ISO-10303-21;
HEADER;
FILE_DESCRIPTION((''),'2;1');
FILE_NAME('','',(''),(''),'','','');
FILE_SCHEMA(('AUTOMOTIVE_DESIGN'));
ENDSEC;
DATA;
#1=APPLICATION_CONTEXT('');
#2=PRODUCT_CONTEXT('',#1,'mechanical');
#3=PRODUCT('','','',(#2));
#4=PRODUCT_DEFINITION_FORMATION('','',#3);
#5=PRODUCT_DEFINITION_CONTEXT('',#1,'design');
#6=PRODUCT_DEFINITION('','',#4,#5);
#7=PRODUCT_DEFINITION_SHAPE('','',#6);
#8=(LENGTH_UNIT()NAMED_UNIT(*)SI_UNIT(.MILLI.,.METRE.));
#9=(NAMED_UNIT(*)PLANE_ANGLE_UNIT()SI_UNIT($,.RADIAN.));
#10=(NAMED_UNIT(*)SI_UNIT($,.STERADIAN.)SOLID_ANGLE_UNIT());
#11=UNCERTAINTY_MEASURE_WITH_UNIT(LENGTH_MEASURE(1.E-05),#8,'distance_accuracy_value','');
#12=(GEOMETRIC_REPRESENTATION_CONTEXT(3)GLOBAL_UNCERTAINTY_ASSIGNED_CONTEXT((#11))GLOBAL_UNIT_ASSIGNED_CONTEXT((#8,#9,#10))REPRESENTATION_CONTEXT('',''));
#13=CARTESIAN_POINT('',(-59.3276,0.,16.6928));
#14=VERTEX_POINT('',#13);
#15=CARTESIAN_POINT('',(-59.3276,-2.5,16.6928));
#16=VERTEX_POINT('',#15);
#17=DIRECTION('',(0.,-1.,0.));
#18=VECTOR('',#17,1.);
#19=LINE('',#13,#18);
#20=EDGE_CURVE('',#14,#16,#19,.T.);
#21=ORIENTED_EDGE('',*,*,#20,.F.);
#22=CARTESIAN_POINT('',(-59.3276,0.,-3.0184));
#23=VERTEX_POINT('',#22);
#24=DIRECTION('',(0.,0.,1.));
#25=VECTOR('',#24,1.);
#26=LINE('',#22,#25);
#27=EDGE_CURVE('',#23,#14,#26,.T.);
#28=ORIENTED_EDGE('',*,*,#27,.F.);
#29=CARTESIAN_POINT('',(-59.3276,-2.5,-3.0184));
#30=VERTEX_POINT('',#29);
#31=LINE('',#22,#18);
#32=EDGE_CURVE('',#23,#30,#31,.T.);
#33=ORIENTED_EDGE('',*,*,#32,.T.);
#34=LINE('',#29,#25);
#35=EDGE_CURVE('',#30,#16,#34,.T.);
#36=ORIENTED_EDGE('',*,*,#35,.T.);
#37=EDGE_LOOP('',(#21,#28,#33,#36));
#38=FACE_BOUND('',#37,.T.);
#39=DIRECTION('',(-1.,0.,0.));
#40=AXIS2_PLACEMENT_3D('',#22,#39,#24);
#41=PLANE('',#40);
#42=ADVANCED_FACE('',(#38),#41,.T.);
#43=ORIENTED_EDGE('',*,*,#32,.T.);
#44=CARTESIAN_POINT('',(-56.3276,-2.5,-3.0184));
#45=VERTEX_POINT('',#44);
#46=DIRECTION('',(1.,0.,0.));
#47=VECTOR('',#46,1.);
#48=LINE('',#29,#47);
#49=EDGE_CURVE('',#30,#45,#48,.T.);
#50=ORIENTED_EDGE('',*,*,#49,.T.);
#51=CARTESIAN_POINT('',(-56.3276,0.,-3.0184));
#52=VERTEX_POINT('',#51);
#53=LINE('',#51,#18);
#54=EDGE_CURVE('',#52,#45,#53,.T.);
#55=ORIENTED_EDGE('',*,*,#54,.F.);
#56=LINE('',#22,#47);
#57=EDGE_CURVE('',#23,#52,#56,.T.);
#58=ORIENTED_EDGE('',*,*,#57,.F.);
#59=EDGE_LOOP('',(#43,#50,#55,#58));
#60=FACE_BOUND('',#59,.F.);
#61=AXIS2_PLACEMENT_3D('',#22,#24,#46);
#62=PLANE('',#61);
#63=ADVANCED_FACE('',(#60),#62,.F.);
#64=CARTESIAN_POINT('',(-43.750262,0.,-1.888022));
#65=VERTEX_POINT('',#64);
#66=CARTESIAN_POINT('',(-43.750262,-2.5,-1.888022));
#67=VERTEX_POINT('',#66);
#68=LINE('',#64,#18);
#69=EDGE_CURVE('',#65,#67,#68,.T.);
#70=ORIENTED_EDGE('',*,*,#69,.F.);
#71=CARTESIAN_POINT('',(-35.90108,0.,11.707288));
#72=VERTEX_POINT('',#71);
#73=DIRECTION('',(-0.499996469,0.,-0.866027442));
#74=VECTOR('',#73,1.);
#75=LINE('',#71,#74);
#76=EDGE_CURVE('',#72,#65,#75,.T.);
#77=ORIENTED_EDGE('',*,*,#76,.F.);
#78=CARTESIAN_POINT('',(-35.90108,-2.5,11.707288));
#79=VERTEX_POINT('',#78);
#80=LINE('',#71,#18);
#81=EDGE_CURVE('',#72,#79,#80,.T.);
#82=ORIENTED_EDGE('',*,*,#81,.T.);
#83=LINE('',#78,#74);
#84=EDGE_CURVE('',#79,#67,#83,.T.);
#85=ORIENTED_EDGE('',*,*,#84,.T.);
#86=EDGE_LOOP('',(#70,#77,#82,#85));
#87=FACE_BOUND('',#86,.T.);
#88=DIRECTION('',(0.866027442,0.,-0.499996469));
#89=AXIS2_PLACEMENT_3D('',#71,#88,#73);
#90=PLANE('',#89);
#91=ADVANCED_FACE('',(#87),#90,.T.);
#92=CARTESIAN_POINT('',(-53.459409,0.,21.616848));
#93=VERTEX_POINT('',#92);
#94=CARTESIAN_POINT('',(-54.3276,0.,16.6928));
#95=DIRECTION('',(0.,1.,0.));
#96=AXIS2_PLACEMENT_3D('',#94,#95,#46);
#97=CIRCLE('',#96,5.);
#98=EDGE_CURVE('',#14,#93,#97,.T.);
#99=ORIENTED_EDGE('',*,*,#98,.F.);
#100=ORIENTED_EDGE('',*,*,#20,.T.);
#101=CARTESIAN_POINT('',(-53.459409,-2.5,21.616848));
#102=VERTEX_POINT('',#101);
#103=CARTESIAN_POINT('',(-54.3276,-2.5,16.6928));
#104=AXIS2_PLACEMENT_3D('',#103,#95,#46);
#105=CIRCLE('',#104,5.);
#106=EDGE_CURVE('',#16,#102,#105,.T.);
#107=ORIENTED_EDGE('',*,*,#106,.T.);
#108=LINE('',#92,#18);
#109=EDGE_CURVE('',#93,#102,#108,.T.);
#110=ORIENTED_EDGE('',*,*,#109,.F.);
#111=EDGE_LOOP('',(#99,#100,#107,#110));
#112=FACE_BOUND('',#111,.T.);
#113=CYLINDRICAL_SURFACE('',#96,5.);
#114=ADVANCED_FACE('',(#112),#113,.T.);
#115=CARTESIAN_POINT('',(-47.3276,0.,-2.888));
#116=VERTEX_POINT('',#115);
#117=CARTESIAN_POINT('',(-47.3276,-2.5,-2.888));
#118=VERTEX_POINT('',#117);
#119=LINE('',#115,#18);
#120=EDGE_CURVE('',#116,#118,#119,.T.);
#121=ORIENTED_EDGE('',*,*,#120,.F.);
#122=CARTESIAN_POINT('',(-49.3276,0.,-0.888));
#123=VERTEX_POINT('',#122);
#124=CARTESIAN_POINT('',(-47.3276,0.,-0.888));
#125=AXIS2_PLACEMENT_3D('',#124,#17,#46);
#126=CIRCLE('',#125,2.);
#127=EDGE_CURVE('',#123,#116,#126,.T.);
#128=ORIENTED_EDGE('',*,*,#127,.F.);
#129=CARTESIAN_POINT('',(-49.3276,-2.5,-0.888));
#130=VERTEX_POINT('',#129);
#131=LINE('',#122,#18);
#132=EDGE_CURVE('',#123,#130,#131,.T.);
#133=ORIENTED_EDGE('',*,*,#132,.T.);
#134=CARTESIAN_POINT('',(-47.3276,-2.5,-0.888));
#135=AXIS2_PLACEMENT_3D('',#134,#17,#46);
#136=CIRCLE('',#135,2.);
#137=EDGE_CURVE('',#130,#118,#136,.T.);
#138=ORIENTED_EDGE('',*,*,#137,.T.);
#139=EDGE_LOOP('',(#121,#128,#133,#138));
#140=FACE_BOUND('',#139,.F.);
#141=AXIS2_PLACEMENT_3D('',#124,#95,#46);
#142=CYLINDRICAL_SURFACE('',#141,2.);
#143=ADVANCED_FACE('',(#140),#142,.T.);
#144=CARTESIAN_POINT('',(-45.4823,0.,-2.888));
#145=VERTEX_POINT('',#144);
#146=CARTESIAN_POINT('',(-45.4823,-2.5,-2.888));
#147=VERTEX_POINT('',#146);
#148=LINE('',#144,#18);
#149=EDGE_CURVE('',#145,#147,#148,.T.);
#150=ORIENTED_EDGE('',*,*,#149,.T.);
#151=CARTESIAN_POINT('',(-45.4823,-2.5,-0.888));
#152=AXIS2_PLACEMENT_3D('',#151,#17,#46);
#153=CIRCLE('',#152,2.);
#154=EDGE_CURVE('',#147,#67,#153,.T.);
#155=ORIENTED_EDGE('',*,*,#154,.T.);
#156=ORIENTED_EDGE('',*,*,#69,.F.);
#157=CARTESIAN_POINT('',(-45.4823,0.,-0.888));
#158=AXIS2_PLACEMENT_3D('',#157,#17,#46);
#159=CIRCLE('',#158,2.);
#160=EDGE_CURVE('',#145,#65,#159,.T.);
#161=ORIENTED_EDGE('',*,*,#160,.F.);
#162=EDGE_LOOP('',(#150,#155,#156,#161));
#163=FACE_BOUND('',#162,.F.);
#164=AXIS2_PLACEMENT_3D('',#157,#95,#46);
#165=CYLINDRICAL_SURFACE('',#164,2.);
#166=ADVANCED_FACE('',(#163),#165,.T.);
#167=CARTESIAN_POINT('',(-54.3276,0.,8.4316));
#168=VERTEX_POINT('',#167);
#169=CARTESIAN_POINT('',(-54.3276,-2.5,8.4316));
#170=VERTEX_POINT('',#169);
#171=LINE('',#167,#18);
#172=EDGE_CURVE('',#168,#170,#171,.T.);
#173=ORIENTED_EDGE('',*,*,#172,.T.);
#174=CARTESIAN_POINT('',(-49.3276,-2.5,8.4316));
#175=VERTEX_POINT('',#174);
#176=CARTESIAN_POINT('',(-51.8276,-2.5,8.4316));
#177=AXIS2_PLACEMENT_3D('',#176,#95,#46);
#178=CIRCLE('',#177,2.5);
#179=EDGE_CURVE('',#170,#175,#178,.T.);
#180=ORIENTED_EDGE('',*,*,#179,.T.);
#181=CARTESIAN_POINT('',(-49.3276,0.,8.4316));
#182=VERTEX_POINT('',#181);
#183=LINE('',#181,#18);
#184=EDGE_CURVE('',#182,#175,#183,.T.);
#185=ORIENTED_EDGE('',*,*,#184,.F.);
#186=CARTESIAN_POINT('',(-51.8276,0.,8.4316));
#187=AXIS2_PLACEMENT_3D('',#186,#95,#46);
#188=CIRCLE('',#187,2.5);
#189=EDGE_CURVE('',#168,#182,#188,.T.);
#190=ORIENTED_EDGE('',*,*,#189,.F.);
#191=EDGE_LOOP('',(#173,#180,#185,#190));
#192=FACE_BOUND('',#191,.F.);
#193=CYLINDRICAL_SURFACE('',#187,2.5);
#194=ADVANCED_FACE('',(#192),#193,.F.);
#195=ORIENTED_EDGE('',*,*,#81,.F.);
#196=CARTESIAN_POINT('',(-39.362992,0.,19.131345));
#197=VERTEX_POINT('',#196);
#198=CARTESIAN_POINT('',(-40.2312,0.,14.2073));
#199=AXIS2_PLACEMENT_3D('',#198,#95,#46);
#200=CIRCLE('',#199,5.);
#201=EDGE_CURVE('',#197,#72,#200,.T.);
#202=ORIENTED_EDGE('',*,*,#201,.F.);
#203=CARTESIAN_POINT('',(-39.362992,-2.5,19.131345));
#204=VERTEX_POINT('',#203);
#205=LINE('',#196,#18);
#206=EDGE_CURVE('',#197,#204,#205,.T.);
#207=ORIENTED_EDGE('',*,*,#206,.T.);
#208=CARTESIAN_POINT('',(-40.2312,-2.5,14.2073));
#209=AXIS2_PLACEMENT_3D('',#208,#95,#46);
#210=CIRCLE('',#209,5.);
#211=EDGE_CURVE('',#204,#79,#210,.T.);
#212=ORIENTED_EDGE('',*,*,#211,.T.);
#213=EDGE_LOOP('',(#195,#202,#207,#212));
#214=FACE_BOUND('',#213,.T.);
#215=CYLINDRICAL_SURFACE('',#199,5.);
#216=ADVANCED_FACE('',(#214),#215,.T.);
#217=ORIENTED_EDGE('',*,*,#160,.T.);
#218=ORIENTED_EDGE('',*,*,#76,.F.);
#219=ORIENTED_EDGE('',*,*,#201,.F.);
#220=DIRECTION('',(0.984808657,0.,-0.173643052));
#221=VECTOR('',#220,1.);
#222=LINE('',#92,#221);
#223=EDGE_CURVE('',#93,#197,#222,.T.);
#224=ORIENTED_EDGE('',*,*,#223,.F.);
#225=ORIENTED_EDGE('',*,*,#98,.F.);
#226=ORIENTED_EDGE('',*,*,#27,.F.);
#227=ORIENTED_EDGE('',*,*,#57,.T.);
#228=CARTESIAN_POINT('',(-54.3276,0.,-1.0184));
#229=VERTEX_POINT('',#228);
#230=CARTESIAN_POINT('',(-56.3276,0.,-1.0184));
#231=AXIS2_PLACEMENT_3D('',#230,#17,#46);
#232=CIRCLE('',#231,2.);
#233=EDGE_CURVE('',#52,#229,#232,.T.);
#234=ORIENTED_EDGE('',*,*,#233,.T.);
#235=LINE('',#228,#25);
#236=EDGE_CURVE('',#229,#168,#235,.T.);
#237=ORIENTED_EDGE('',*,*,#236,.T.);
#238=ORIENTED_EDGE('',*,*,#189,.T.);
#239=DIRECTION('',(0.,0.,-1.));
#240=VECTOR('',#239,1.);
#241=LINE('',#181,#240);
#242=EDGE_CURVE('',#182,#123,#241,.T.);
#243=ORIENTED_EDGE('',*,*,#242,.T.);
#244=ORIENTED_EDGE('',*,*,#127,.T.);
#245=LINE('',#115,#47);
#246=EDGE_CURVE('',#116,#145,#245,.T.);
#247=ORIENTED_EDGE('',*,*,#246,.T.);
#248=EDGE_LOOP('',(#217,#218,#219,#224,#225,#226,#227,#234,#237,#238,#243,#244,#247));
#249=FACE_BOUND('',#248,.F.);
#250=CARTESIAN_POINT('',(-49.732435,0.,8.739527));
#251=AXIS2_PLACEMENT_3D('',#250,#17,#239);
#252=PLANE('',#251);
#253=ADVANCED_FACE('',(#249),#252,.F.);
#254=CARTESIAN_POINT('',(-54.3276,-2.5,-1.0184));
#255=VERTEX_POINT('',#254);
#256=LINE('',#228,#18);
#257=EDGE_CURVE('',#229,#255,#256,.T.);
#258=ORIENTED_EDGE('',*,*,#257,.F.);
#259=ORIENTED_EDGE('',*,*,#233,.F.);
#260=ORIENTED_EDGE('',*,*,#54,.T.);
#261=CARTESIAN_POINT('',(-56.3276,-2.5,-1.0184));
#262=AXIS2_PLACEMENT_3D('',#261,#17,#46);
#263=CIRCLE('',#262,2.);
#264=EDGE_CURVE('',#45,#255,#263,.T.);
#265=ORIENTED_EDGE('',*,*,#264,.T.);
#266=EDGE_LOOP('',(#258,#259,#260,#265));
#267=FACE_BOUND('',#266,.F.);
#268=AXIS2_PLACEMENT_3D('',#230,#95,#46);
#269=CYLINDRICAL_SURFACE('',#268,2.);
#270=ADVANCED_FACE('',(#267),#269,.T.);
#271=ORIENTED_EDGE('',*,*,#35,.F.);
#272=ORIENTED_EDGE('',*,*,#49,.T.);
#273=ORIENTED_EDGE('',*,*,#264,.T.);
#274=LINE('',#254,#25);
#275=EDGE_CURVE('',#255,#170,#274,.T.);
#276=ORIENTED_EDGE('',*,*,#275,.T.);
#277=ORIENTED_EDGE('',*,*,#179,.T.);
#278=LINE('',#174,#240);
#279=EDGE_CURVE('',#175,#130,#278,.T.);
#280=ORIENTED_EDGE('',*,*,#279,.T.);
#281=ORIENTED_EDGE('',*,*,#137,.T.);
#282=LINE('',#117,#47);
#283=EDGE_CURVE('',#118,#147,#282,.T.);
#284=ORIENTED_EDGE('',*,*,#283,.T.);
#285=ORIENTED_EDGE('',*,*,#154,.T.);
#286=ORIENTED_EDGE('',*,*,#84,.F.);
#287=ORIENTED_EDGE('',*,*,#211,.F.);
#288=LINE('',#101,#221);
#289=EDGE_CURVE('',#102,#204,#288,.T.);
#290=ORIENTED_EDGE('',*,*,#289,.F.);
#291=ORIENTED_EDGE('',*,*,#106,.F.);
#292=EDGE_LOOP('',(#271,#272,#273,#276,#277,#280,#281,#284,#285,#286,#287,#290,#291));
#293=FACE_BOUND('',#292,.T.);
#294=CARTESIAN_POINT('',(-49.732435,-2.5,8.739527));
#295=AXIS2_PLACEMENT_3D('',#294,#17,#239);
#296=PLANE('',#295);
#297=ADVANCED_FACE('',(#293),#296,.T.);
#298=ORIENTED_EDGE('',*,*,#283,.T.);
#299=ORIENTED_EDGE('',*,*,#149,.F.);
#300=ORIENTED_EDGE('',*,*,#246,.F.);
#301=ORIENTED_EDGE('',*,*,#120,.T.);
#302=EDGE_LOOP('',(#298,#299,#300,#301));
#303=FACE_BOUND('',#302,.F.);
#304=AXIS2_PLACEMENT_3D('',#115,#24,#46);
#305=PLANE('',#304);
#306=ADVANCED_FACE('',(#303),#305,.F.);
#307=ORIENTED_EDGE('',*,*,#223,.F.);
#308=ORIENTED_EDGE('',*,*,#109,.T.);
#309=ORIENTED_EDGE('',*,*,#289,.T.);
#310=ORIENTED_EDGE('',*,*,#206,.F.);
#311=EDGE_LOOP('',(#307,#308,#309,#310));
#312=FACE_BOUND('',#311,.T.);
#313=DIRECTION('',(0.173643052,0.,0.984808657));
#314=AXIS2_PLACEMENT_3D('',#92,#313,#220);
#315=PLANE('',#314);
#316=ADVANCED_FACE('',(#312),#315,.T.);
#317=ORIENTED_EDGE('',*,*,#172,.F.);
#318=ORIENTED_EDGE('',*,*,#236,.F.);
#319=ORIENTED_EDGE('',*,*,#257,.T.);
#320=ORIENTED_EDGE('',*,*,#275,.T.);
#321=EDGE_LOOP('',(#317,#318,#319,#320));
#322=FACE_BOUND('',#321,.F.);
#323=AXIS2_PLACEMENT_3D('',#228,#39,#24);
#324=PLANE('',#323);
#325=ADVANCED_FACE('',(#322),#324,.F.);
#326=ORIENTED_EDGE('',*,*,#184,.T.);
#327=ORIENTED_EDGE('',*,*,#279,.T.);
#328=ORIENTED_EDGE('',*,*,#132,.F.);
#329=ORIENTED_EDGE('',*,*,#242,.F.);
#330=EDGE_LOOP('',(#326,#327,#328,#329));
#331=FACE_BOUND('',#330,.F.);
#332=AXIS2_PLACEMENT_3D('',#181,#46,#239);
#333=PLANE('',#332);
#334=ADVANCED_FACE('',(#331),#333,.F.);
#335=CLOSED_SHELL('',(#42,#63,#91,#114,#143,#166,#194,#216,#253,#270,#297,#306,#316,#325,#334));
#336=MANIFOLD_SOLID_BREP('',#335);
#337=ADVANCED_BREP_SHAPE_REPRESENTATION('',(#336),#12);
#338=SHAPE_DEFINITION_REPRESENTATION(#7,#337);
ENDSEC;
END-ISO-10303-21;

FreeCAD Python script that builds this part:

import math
import FreeCAD as App
import Part
import Sketcher
Q = App.Units.Quantity

doc = App.newDocument("Part")
body = doc.addObject("PartDesign::Body", "Body")

sketch1 = body.newObject("Sketcher::SketchObject", "Sketch")
sketch1.AttachmentSupport = (doc.getObject("XZ_Plane"), [""])
sketch1.MapMode = "FlatFace"
sketch1.addGeometry(Part.LineSegment(App.Vector(-59.3276, 16.6928, 0), App.Vector(-59.3276, -3.0184, 0)), False)
sketch1.addGeometry(Part.LineSegment(App.Vector(-59.3276, -3.0184, 0), App.Vector(-56.3276, -3.0184, 0)), False)
sketch1.addGeometry(Part.ArcOfCircle(Part.Circle(App.Vector(-56.3276, -1.0184, 0), App.Vector(0, 0, 1), 2), math.radians(-90), math.radians(0)), False)
sketch1.addGeometry(Part.LineSegment(App.Vector(-54.3276, -1.0184, 0), App.Vector(-54.3276, 8.4316, 0)), False)
sketch1.addGeometry(Part.ArcOfCircle(Part.Circle(App.Vector(-51.8276, 8.4316, 0), App.Vector(0, 0, 1), 2.5), math.radians(0), math.radians(180)), False)
sketch1.addGeometry(Part.LineSegment(App.Vector(-49.3276, 8.4316, 0), App.Vector(-49.3276, -0.888, 0)), False)
sketch1.addGeometry(Part.ArcOfCircle(Part.Circle(App.Vector(-47.3276, -0.888, 0), App.Vector(0, 0, 1), 2), math.radians(180), math.radians(270)), False)
sketch1.addGeometry(Part.LineSegment(App.Vector(-47.3276, -2.888, 0), App.Vector(-45.4823, -2.888, 0)), False)
sketch1.addGeometry(Part.ArcOfCircle(Part.Circle(App.Vector(-45.4823, -0.888, 0), App.Vector(0, 0, 1), 2), math.radians(-90), math.radians(-30.000728)), False)
sketch1.addGeometry(Part.LineSegment(App.Vector(-43.7503, -1.888, 0), App.Vector(-35.9011, 11.7073, 0)), False)
sketch1.addGeometry(Part.ArcOfCircle(Part.Circle(App.Vector(-40.2312, 14.2073, 0), App.Vector(0, 0, 1), 4.999955), math.radians(-30.000155), math.radians(80.000384)), False)
sketch1.addGeometry(Part.LineSegment(App.Vector(-39.363, 19.1313, 0), App.Vector(-53.4594, 21.6169, 0)), False)
sketch1.addGeometry(Part.ArcOfCircle(Part.Circle(App.Vector(-54.3276, 16.6928, 0), App.Vector(0, 0, 1), 5), math.radians(80.000583), math.radians(180)), False)
sketch1.addConstraint(Sketcher.Constraint("Coincident", 0, 2, 1, 1))
sketch1.addConstraint(Sketcher.Constraint("Tangent", 1, 2, 2, 1))
sketch1.addConstraint(Sketcher.Constraint("Tangent", 2, 2, 3, 1))
sketch1.addConstraint(Sketcher.Constraint("Tangent", 3, 2, 4, 2))
sketch1.addConstraint(Sketcher.Constraint("Tangent", 4, 1, 5, 1))
sketch1.addConstraint(Sketcher.Constraint("Tangent", 5, 2, 6, 1))
sketch1.addConstraint(Sketcher.Constraint("Tangent", 6, 2, 7, 1))
sketch1.addConstraint(Sketcher.Constraint("Tangent", 7, 2, 8, 1))
sketch1.addConstraint(Sketcher.Constraint("Tangent", 8, 2, 9, 1))
sketch1.addConstraint(Sketcher.Constraint("Tangent", 9, 2, 10, 1))
sketch1.addConstraint(Sketcher.Constraint("Tangent", 10, 2, 11, 1))
sketch1.addConstraint(Sketcher.Constraint("Tangent", 11, 2, 12, 1))
sketch1.addConstraint(Sketcher.Constraint("Tangent", 12, 2, 0, 1))
sketch1.addConstraint(Sketcher.Constraint("Vertical", 0))
sketch1.addConstraint(Sketcher.Constraint("Horizontal", 1))
sketch1.addConstraint(Sketcher.Constraint("Vertical", 3))
sketch1.addConstraint(Sketcher.Constraint("Vertical", 5))
sketch1.addConstraint(Sketcher.Constraint("Horizontal", 7))
sketch1.addConstraint(Sketcher.Constraint("Equal", 2, 6))
sketch1.addConstraint(Sketcher.Constraint("Equal", 6, 8))
sketch1.addConstraint(Sketcher.Constraint("Equal", 10, 12))
sketch1.addConstraint(Sketcher.Constraint("Vertical", 12, 3, 2, 2))
sketch1.addConstraint(Sketcher.Constraint("Radius", 2, 2.0))
sketch1.addConstraint(Sketcher.Constraint("Radius", 10, 5.0))
sketch1.addConstraint(Sketcher.Constraint("Radius", 4, 2.5))
sketch1.addConstraint(Sketcher.Constraint("Angle", 9, Q("60.0002 deg")))
sketch1.addConstraint(Sketcher.Constraint("Angle", 11, Q("170 deg")))
sketch1.addConstraint(Sketcher.Constraint("DistanceY", 3, 1, 3, 2, 9.45))
sketch1.addConstraint(Sketcher.Constraint("DistanceX", 7, 1, 7, 2, 1.8453))
sketch1.addConstraint(Sketcher.Constraint("DistanceY", 0, 2, 0, 1, 19.7112))
sketch1.addConstraint(Sketcher.Constraint("DistanceY", 5, 2, 5, 1, 9.3196))
sketch1.addConstraint(Sketcher.Constraint("DistanceY", 6, 3, -1, 1, 0.888))
sketch1.addConstraint(Sketcher.Constraint("DistanceX", 9, 2, -1, 1, 35.901))
pad1 = body.newObject("PartDesign::Pad", "Pad")
pad1.Profile = sketch1
pad1.Length = 2.5

doc.recompute()
